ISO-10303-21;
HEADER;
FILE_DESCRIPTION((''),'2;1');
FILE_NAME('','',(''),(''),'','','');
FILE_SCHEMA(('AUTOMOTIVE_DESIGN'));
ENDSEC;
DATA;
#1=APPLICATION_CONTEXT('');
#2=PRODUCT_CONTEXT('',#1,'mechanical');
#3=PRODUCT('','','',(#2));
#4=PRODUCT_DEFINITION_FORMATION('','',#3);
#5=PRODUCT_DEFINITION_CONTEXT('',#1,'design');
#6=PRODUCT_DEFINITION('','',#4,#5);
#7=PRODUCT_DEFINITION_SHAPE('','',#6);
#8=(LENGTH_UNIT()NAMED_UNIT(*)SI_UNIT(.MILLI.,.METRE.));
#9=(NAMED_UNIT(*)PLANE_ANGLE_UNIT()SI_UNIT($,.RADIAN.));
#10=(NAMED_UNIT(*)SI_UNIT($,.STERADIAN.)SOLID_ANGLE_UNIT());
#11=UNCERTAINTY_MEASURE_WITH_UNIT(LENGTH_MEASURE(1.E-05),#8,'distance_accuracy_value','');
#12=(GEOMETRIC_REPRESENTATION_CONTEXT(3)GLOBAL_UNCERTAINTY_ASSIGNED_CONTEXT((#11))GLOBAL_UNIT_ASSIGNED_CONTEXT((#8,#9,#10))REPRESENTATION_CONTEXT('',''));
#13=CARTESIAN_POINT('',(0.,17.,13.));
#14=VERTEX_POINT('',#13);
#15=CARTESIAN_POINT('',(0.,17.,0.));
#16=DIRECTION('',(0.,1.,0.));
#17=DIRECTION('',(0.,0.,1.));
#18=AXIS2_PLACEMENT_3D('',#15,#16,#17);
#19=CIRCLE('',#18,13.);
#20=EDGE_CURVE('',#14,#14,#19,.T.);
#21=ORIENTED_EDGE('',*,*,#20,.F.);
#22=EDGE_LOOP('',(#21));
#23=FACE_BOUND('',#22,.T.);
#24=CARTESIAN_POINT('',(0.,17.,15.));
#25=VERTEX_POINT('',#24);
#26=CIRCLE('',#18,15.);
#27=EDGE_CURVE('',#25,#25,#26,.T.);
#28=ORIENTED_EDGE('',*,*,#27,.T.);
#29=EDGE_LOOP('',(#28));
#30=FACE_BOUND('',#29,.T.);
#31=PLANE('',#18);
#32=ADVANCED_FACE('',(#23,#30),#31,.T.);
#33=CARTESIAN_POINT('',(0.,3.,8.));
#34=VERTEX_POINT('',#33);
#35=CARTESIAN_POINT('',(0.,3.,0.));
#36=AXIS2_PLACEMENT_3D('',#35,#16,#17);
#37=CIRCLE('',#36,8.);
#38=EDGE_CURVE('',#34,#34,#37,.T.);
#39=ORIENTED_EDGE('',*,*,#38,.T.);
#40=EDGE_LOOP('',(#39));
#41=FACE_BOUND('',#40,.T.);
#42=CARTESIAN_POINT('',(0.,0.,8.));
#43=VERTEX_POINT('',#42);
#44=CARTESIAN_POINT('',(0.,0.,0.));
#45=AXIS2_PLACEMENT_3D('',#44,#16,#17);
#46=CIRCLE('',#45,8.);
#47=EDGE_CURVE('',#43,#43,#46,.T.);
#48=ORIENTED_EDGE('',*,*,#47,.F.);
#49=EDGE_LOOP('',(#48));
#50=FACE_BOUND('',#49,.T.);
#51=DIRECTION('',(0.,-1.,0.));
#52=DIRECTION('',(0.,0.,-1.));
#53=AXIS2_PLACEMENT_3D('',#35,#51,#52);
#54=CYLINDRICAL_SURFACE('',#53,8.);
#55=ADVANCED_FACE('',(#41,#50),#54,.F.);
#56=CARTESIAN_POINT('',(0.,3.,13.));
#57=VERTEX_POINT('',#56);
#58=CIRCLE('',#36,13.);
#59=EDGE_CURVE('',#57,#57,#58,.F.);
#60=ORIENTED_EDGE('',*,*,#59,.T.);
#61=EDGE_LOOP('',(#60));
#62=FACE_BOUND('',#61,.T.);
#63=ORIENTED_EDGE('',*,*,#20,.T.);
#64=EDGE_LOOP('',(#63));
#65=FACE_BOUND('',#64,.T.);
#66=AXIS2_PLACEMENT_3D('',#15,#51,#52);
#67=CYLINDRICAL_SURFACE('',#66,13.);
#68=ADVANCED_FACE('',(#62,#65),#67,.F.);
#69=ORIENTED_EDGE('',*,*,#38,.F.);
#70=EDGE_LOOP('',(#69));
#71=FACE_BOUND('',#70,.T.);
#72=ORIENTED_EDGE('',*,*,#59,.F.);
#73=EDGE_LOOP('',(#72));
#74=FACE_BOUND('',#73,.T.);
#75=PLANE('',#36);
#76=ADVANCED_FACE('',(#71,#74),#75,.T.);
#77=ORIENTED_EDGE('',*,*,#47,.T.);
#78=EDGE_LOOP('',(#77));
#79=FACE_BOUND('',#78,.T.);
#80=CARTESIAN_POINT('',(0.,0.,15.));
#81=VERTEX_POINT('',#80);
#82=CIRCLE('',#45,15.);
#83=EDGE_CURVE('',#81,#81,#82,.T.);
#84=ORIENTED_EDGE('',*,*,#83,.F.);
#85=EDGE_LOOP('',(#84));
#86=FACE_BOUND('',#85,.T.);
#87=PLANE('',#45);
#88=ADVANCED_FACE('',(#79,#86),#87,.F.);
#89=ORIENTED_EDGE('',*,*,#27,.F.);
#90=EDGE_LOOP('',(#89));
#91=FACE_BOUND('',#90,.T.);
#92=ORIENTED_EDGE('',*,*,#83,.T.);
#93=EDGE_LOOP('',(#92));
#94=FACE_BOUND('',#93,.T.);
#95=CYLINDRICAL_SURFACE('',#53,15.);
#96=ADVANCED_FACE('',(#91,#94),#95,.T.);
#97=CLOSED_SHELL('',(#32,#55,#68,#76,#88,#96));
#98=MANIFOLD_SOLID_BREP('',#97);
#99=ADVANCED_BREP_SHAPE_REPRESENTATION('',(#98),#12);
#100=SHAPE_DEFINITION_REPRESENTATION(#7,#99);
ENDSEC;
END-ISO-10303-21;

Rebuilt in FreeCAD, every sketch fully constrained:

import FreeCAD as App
import Part
import Sketcher

doc = App.newDocument("Part")
body = doc.addObject("PartDesign::Body", "Body")

sketch1 = body.newObject("Sketcher::SketchObject", "Sketch")
sketch1.AttachmentSupport = (doc.getObject("XZ_Plane"), [""])
sketch1.MapMode = "FlatFace"
sketch1.addGeometry([
    Part.Circle(App.Vector(0, 0, 0), App.Vector(0, 0, 1), 15),
    Part.Circle(App.Vector(0, 0, 0), App.Vector(0, 0, 1), 8),
], False)
sketch1.addConstraint([
    Sketcher.Constraint("Coincident", 0, 3, -1, 1),
    Sketcher.Constraint("Coincident", 1, 3, -1, 1),
    Sketcher.Constraint("Diameter", 0, 30.0),
    Sketcher.Constraint("Diameter", 1, 16.0),
])
pad1 = body.newObject("PartDesign::Pad", "Pad")
pad1.Profile = sketch1
pad1.Length = 3
pad1.Reversed = True

sketch2 = body.newObject("Sketcher::SketchObject", "Sketch001")
sketch2.AttachmentSupport = (doc.getObject("XZ_Plane"), [""])
sketch2.MapMode = "FlatFace"
sketch2.AttachmentOffset = App.Placement(App.Vector(0, 0, -3), App.Rotation())
sketch2.addGeometry([
    Part.Circle(App.Vector(0, 0, 0), App.Vector(0, 0, 1), 15),
    Part.Circle(App.Vector(0, 0, 0), App.Vector(0, 0, 1), 13),
], False)
sketch2.addConstraint([
    Sketcher.Constraint("Coincident", 0, 3, -1, 1),
    Sketcher.Constraint("Coincident", 1, 3, -1, 1),
    Sketcher.Constraint("Diameter", 0, 30.0),
    Sketcher.Constraint("Diameter", 1, 26.0),
])
pad2 = body.newObject("PartDesign::Pad", "Pad001")
pad2.Profile = sketch2
pad2.Length = 14
pad2.Reversed = True

doc.recompute()
